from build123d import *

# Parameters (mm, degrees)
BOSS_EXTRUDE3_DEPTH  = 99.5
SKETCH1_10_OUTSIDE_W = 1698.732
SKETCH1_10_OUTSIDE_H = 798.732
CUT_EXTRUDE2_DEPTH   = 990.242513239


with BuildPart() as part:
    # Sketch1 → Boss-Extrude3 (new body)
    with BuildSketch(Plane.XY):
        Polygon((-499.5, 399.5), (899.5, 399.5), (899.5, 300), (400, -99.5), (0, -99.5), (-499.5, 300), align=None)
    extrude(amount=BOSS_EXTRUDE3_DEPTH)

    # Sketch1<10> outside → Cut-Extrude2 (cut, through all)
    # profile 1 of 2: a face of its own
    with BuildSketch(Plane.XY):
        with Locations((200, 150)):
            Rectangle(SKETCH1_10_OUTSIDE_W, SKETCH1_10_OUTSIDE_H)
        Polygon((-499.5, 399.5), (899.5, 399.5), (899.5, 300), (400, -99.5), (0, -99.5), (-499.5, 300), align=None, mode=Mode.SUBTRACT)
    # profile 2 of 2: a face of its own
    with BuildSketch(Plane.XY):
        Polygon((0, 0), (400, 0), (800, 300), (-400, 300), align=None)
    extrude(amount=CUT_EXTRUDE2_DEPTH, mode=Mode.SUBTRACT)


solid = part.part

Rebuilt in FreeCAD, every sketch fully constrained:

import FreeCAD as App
import Part
import Sketcher

V = App.Vector
Q = App.Units.Quantity


def add_polygon(sketch, points):
    """Adds a closed chain of lines whose ends are joined by coincident constraints."""
    first, n = sketch.GeometryCount, len(points)
    for a, b in zip(points, points[1:] + points[:1]):
        sketch.addGeometry(Part.LineSegment(App.Vector(*a, 0), App.Vector(*b, 0)), False)
    for i in range(n):
        sketch.addConstraint(Sketcher.Constraint("Coincident", first + i, 2, first + (i + 1) % n, 1))

doc = App.newDocument("Part")
body = doc.addObject("PartDesign::Body", "Body")

# Sketch on XY plane
sketch1 = doc.addObject("Sketcher::SketchObject", "Sketch")
body.addObject(sketch1)
sketch1.AttachmentSupport = (doc.XY_Plane, [""])
sketch1.MapMode = "FlatFace"
add_polygon(sketch1, [(900, 400), (-500, 400), (-500, 300), (0, -100), (400, -100), (900, 300)])  # lines 0-5
sketch1.addConstraint([
    Sketcher.Constraint("Horizontal", 0),
    Sketcher.Constraint("Vertical", 1),
    Sketcher.Constraint("Horizontal", 3),
    Sketcher.Constraint("Vertical", 5),
    Sketcher.Constraint("PointOnObject", 2, 2, -2),
    Sketcher.Constraint("Horizontal", 1, 2, 4, 2),
    Sketcher.Constraint("Equal", 2, 4),
    Sketcher.Constraint("DistanceX", 0, 2, 0, 1, Q("1399 mm")),
    Sketcher.Constraint("DistanceX", 3, 1, 3, 2, Q("400 mm")),
    Sketcher.Constraint("DistanceY", 1, 2, 1, 1, Q("99.5 mm")),
    Sketcher.Constraint("DistanceY", -1, 1, 1, 2, Q("300 mm")),
    Sketcher.Constraint("DistanceY", 2, 2, 0, 2, Q("499 mm")),
])
pad1 = doc.addObject("PartDesign::Pad", "Pad")
body.addObject(pad1)
pad1.Profile = sketch1
pad1.Length = 99.5

# Sketch on XY plane
sketch2 = doc.addObject("Sketcher::SketchObject", "Sketch001")
body.addObject(sketch2)
sketch2.AttachmentSupport = (doc.XY_Plane, [""])
sketch2.MapMode = "FlatFace"
add_polygon(sketch2, [(-649, 549), (-649, -249), (1049, -249), (1049, 549)])  # lines 0-3
add_polygon(sketch2, [(-500, 300), (-500, 400), (900, 400), (900, 300), (400, -100), (0, -100)])  # lines 4-9
add_polygon(sketch2, [(0, 0), (400, 0), (800, 300), (-400, 300)])  # lines 10-13
sketch2.addConstraint([
    Sketcher.Constraint("Vertical", 0),
    Sketcher.Constraint("Horizontal", 1),
    Sketcher.Constraint("Vertical", 2),
    Sketcher.Constraint("Horizontal", 3),
    Sketcher.Constraint("Vertical", 4),
    Sketcher.Constraint("Horizontal", 5),
    Sketcher.Constraint("Vertical", 6),
    Sketcher.Constraint("Horizontal", 8),
    Sketcher.Constraint("Horizontal", 10),
    Sketcher.Constraint("Horizontal", 12),
    Sketcher.Constraint("Coincident", 13, 2, -1, 1),
    Sketcher.Constraint("PointOnObject", 8, 2, -2),
    Sketcher.Constraint("Horizontal", 6, 2, 9, 2),
    Sketcher.Constraint("Horizontal", 9, 2, 11, 2),
    Sketcher.Constraint("Vertical", 7, 2, 10, 2),
    Sketcher.Constraint("Equal", 7, 9),
    Sketcher.Constraint("Equal", 11, 13),
    Sketcher.Constraint("DistanceX", 5, 1, 5, 2, Q("1399 mm")),
    Sketcher.Constraint("DistanceX", 8, 2, 8, 1, Q("400 mm")),
    Sketcher.Constraint("DistanceX", 12, 2, 12, 1, Q("1200 mm")),
    Sketcher.Constraint("Distance", 11, Q("500 mm")),
    Sketcher.Constraint("DistanceY", 4, 1, 4, 2, Q("99.5 mm")),
    Sketcher.Constraint("DistanceY", 7, 2, 5, 2, Q("499 mm")),
    Sketcher.Constraint("DistanceX", 1, 1, 1, 2, Q("1698.732 mm")),
    Sketcher.Constraint("DistanceY", 0, 2, 0, 1, Q("798.732 mm")),
    Sketcher.Constraint("DistanceX", 0, 2, -1, 1, Q("649.366 mm")),
    Sketcher.Constraint("DistanceY", 0, 2, -1, 1, Q("249.366 mm")),
])
pocket1 = doc.addObject("PartDesign::Pocket", "Pocket")
body.addObject(pocket1)
pocket1.Profile = sketch2
pocket1.Length = 990.242513
pocket1.Reversed = True

doc.recompute()
